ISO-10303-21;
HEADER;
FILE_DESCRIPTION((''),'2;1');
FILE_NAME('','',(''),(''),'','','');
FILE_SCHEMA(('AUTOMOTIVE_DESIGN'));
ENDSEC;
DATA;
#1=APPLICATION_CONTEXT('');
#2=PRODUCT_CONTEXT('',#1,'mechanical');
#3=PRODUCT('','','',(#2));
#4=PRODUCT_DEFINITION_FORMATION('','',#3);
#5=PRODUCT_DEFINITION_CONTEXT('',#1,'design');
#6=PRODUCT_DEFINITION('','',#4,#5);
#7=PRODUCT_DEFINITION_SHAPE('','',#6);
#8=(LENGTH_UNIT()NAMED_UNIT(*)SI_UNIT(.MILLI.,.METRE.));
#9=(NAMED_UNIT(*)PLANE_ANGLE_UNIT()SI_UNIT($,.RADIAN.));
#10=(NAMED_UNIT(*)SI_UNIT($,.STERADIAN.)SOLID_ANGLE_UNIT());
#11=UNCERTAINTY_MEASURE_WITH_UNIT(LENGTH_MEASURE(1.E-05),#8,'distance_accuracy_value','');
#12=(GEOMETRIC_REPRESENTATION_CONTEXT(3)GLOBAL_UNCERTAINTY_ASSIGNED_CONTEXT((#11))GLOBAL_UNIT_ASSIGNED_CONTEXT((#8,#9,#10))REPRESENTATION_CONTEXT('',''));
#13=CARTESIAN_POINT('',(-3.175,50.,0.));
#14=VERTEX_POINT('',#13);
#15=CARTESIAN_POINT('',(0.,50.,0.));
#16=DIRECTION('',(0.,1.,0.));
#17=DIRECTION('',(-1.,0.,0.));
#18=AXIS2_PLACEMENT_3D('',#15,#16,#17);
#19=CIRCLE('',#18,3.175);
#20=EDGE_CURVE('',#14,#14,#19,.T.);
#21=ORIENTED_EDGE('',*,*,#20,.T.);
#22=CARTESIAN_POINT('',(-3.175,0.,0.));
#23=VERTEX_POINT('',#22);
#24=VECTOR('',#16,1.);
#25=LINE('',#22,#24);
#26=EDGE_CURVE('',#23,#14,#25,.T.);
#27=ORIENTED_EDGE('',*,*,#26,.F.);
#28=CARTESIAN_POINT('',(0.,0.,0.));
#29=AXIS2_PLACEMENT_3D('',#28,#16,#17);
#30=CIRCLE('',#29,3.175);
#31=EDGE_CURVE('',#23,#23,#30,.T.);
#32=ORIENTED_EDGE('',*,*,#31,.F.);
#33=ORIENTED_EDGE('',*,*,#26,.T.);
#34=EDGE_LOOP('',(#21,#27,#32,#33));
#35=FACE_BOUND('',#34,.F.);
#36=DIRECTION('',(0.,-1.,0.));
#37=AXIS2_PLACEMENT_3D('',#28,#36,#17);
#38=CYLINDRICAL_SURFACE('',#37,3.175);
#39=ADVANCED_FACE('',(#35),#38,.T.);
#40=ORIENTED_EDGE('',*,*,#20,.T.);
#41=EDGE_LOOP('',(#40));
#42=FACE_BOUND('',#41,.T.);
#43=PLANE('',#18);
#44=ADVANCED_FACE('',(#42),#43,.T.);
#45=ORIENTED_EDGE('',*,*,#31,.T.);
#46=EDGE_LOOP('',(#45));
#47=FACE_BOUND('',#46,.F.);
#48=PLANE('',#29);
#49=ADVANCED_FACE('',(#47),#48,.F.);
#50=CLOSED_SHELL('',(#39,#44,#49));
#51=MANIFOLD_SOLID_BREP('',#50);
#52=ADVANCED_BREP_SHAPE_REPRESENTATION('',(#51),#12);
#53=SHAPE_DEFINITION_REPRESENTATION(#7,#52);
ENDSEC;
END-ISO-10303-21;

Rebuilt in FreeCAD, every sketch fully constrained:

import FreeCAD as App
import Part
import Sketcher

V = App.Vector
Q = App.Units.Quantity

doc = App.newDocument("Part")
params = doc.addObject("Spreadsheet::Sheet", "Params")
for row, (alias, value) in enumerate([
    ("sketch1_diameter", "0.25 in"),
    ("pad1_length", "1.9685039 in"),
], start=1):
    params.set(f"A{row}", alias)
    params.set(f"B{row}", "=" + value)
    params.setAlias(f"B{row}", alias)

body = doc.addObject("PartDesign::Body", "Body")

# Sketch on XZ plane
sketch1 = body.newObject("Sketcher::SketchObject", "Sketch")
sketch1.AttachmentSupport = (doc.getObject("XZ_Plane"), [""])
sketch1.MapMode = "FlatFace"
sketch1.addGeometry(Part.Circle(V(0, 0, 0), V(0, 0, 1), 3.2), False)
sketch1.addConstraint([
    Sketcher.Constraint("Coincident", 0, 3, -1, 1),
    Sketcher.Constraint("Diameter", 0, Q("0.25 in")),
])
sketch1.setExpression("Constraints[1]", "Params.sketch1_diameter")
pad1 = body.newObject("PartDesign::Pad", "Pad")
pad1.Profile = sketch1
pad1.setExpression("Length", "Params.pad1_length")
pad1.Reversed = True

doc.recompute()
